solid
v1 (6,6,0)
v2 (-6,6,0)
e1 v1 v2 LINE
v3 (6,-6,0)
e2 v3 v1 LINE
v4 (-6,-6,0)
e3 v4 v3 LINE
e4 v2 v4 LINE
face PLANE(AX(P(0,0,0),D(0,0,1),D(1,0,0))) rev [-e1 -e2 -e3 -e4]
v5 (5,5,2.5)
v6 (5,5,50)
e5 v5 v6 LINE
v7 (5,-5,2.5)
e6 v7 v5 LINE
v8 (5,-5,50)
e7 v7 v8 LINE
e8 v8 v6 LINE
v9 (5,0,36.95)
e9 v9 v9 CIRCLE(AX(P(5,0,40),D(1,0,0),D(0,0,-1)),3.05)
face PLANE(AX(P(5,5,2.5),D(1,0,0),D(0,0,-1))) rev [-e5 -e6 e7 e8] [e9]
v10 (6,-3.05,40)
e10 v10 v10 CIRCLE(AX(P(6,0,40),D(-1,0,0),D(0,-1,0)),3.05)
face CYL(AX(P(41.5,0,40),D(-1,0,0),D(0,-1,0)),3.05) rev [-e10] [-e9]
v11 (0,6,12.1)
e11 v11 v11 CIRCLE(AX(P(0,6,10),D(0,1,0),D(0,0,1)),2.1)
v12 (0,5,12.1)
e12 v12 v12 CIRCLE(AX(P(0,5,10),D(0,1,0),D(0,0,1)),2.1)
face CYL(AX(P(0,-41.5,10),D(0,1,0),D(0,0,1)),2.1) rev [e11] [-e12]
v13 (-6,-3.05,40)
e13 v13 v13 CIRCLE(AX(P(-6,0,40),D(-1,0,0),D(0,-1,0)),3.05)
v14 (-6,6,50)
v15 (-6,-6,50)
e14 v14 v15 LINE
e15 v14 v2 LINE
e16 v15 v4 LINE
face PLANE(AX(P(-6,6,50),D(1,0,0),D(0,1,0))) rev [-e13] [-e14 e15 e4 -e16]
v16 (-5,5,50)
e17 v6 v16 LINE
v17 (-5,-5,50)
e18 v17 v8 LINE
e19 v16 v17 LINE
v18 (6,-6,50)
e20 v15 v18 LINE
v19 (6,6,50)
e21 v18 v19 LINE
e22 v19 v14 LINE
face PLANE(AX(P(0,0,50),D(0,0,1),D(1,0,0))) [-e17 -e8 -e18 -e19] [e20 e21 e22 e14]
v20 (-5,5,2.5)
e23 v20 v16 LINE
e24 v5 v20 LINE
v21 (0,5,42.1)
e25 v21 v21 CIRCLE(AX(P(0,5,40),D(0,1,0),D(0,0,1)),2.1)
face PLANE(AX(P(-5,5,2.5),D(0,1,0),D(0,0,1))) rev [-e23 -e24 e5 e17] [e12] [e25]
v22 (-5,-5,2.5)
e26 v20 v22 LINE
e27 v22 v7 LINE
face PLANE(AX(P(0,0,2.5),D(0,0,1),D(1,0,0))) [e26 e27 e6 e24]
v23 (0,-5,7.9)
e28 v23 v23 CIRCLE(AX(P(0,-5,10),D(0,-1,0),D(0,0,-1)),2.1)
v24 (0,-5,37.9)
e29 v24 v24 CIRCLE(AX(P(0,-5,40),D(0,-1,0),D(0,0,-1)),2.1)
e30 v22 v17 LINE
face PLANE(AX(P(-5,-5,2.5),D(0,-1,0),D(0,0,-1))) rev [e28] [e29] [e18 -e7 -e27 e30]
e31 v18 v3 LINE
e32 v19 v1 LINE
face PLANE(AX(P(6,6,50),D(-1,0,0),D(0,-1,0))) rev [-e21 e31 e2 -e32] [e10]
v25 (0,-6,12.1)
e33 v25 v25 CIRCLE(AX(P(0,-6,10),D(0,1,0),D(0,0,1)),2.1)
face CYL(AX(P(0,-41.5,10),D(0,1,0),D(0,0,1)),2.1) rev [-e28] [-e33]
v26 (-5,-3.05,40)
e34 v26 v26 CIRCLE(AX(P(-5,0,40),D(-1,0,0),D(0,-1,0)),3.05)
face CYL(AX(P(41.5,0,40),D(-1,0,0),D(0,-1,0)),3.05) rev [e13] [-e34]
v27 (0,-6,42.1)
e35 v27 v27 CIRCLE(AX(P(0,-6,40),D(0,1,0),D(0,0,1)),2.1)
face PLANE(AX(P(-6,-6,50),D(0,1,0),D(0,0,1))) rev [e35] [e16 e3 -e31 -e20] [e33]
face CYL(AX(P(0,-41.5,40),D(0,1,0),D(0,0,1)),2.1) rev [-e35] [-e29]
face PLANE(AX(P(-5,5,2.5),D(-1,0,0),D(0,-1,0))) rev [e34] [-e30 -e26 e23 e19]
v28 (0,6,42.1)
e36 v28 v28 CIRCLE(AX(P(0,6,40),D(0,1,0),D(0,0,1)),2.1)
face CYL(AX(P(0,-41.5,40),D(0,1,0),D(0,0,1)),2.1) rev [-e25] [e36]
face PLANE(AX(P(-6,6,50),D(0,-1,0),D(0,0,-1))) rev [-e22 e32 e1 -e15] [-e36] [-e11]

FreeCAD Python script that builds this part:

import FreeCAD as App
import Part
import Sketcher
Q = App.Units.Quantity


def add_polygon(sketch, points):
    """Adds a closed chain of lines whose ends are joined by coincident constraints."""
    first, n = sketch.GeometryCount, len(points)
    for a, b in zip(points, points[1:] + points[:1]):
        sketch.addGeometry(Part.LineSegment(App.Vector(*a, 0), App.Vector(*b, 0)), False)
    for i in range(n):
        sketch.addConstraint(Sketcher.Constraint("Coincident", first + i, 2, first + (i + 1) % n, 1))

doc = App.newDocument("Part")
params = doc.addObject("Spreadsheet::Sheet", "Params")
for row, (alias, value) in enumerate([
    ("sketch1_width", "12 mm"),
    ("pad1_length", "50 mm"),
    ("sketch2_width", "10 mm"),
    ("pocket1_length", "47.5 mm"),
    ("sketch3_diameter", "4.2 mm"),
    ("pocket2_length", "47.5 mm"),
    ("sketch4_diameter", "6.1 mm"),
    ("pocket3_length", "47.5 mm"),
], start=1):
    params.set(f"A{row}", alias)
    params.set(f"B{row}", "=" + value)
    params.setAlias(f"B{row}", alias)

body = doc.addObject("PartDesign::Body", "Body")

sketch1 = body.newObject("Sketcher::SketchObject", "Sketch")
sketch1.AttachmentSupport = (doc.getObject("XY_Plane"), [""])
sketch1.MapMode = "FlatFace"
add_polygon(sketch1, [(-6, 6), (-6, -6), (6, -6), (6, 6)])
sketch1.addConstraint([
    Sketcher.Constraint("Vertical", 0),
    Sketcher.Constraint("Horizontal", 1),
    Sketcher.Constraint("Vertical", 2),
    Sketcher.Constraint("Horizontal", 3),
    Sketcher.Constraint("Symmetric", 0, 2, 2, 2, -1, 1),
    Sketcher.Constraint("Equal", 3, 0),
    Sketcher.Constraint("DistanceX", 1, 1, 1, 2, Q("12 mm")),
])
sketch1.setExpression("Constraints[10]", "Params.sketch1_width")
pad1 = body.newObject("PartDesign::Pad", "Pad")
pad1.Profile = sketch1
pad1.setExpression("Length", "Params.pad1_length")

sketch2 = body.newObject("Sketcher::SketchObject", "Sketch001")
sketch2.AttachmentSupport = (doc.getObject("XY_Plane"), [""])
sketch2.MapMode = "FlatFace"
sketch2.AttachmentOffset = App.Placement(App.Vector(0, 0, 50), App.Rotation())
add_polygon(sketch2, [(-5, 5), (-5, -5), (5, -5), (5, 5)])
sketch2.addConstraint([
    Sketcher.Constraint("Vertical", 0),
    Sketcher.Constraint("Horizontal", 1),
    Sketcher.Constraint("Vertical", 2),
    Sketcher.Constraint("Horizontal", 3),
    Sketcher.Constraint("Symmetric", 0, 2, 2, 2, -1, 1),
    Sketcher.Constraint("Equal", 3, 0),
    Sketcher.Constraint("DistanceX", 1, 1, 1, 2, Q("10 mm")),
])
sketch2.setExpression("Constraints[10]", "Params.sketch2_width")
pocket1 = body.newObject("PartDesign::Pocket", "Pocket")
pocket1.Profile = sketch2
pocket1.setExpression("Length", "Params.pocket1_length")

sketch3 = body.newObject("Sketcher::SketchObject", "Sketch002")
sketch3.AttachmentSupport = (doc.getObject("XZ_Plane"), [""])
sketch3.MapMode = "FlatFace"
sketch3.AttachmentOffset = App.Placement(App.Vector(0, 0, -6), App.Rotation())
sketch3.addGeometry([
    Part.Circle(App.Vector(0, 10, 0), App.Vector(0, 0, 1), 2.1),
    Part.Circle(App.Vector(0, 40, 0), App.Vector(0, 0, 1), 2.1),
], False)
sketch3.addConstraint([
    Sketcher.Constraint("Equal", 0, 1),
    Sketcher.Constraint("PointOnObject", 0, 3, -2),
    Sketcher.Constraint("PointOnObject", 1, 3, -2),
    Sketcher.Constraint("Diameter", 0, Q("4.2 mm")),
    Sketcher.Constraint("DistanceY", -1, 1, 0, 3, Q("10 mm")),
    Sketcher.Constraint("DistanceY", -1, 1, 1, 3, Q("40 mm")),
])
sketch3.setExpression("Constraints[3]", "Params.sketch3_diameter")
pocket2 = body.newObject("PartDesign::Pocket", "Pocket001")
pocket2.Profile = sketch3
pocket2.setExpression("Length", "Params.pocket2_length")
pocket2.Reversed = True

sketch4 = body.newObject("Sketcher::SketchObject", "Sketch003")
sketch4.AttachmentSupport = (doc.getObject("YZ_Plane"), [""])
sketch4.MapMode = "FlatFace"
sketch4.AttachmentOffset = App.Placement(App.Vector(0, 0, -6), App.Rotation())
sketch4.addGeometry(Part.Circle(App.Vector(0, 40, 0), App.Vector(0, 0, 1), 3), False)
sketch4.addConstraint([
    Sketcher.Constraint("PointOnObject", 0, 3, -2),
    Sketcher.Constraint("Diameter", 0, Q("6.1 mm")),
    Sketcher.Constraint("DistanceY", -1, 1, 0, 3, Q("40 mm")),
])
sketch4.setExpression("Constraints[1]", "Params.sketch4_diameter")
pocket3 = body.newObject("PartDesign::Pocket", "Pocket002")
pocket3.Profile = sketch4
pocket3.setExpression("Length", "Params.pocket3_length")
pocket3.Reversed = True

doc.recompute()
